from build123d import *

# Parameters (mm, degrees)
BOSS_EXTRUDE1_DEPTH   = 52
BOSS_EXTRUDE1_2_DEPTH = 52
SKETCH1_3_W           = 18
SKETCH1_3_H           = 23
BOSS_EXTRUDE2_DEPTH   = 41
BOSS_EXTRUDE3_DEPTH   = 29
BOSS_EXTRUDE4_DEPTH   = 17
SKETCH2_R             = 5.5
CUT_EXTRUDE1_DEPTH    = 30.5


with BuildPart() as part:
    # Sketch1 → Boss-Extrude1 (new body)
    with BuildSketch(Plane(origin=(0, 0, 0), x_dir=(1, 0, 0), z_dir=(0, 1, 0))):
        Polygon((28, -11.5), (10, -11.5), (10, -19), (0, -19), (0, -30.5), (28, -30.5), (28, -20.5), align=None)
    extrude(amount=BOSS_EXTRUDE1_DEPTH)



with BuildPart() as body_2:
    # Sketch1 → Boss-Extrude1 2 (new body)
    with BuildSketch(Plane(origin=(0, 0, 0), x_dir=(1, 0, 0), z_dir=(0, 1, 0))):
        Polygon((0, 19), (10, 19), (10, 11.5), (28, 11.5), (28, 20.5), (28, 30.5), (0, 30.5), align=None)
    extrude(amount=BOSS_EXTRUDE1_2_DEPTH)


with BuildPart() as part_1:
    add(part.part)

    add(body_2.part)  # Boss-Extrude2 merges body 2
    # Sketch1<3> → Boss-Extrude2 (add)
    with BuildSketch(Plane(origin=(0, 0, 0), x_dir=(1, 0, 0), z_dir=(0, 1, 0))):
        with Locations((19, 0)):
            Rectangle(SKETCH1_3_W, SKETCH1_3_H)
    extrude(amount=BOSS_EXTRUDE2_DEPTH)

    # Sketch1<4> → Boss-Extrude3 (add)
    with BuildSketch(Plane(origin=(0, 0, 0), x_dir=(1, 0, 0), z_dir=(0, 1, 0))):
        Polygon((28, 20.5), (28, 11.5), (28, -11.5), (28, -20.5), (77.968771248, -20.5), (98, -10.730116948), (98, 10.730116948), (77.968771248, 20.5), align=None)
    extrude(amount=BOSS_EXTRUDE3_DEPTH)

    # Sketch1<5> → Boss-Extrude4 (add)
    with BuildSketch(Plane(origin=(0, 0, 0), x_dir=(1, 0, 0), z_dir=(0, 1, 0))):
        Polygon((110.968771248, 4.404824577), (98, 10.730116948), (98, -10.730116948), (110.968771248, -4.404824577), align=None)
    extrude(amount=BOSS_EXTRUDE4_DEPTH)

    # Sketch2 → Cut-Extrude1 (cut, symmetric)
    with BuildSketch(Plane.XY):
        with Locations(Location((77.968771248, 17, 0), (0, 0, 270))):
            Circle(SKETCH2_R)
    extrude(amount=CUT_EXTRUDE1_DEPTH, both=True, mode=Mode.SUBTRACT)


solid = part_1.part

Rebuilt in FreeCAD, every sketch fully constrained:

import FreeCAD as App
import Part
import Sketcher
Q = App.Units.Quantity


def add_polygon(sketch, points):
    """Adds a closed chain of lines whose ends are joined by coincident constraints."""
    first, n = sketch.GeometryCount, len(points)
    for a, b in zip(points, points[1:] + points[:1]):
        sketch.addGeometry(Part.LineSegment(App.Vector(*a, 0), App.Vector(*b, 0)), False)
    for i in range(n):
        sketch.addConstraint(Sketcher.Constraint("Coincident", first + i, 2, first + (i + 1) % n, 1))

doc = App.newDocument("Part")
body = doc.addObject("PartDesign::Body", "Body")

# Sketch on XZ plane
sketch1 = body.newObject("Sketcher::SketchObject", "Sketch")
sketch1.AttachmentSupport = (doc.getObject("XZ_Plane"), [""])
sketch1.MapMode = "FlatFace"
add_polygon(sketch1, [(28, 12), (10, 12), (10, 19), (0, 19), (0, 30), (28, 30)])  # lines 0-5
sketch1.addConstraint([
    Sketcher.Constraint("Horizontal", 0),
    Sketcher.Constraint("Vertical", 1),
    Sketcher.Constraint("Horizontal", 2),
    Sketcher.Constraint("Vertical", 3),
    Sketcher.Constraint("Horizontal", 4),
    Sketcher.Constraint("Vertical", 5),
    Sketcher.Constraint("PointOnObject", 2, 2, -2),
    Sketcher.Constraint("DistanceX", 0, 2, 0, 1, 18.0),
    Sketcher.Constraint("DistanceX", 2, 2, 2, 1, 10.0),
    Sketcher.Constraint("DistanceY", 5, 2, 5, 1, 19.0),
    Sketcher.Constraint("DistanceY", 1, 1, 1, 2, 7.5),
    Sketcher.Constraint("DistanceY", -1, 1, 1, 2, 19.0),
])
pad1 = body.newObject("PartDesign::Pad", "Pad")
pad1.Profile = sketch1
pad1.Length = 52
pad1.Reversed = True
body2 = doc.addObject("PartDesign::Body", "Body001")

# Sketch on XZ plane
sketch2 = body2.newObject("Sketcher::SketchObject", "Sketch001")
sketch2.AttachmentSupport = (doc.getObject("XZ_Plane001"), [""])
sketch2.MapMode = "FlatFace"
add_polygon(sketch2, [(0, -19), (10, -19), (10, -12), (28, -12), (28, -30), (0, -30)])  # lines 0-5
sketch2.addConstraint([
    Sketcher.Constraint("Horizontal", 0),
    Sketcher.Constraint("Vertical", 1),
    Sketcher.Constraint("Horizontal", 2),
    Sketcher.Constraint("Vertical", 3),
    Sketcher.Constraint("Horizontal", 4),
    Sketcher.Constraint("Vertical", 5),
    Sketcher.Constraint("PointOnObject", 4, 2, -2),
    Sketcher.Constraint("DistanceX", 0, 1, 0, 2, 10.0),
    Sketcher.Constraint("DistanceX", 2, 1, 2, 2, 18.0),
    Sketcher.Constraint("DistanceY", 3, 2, 3, 1, 19.0),
    Sketcher.Constraint("DistanceY", 1, 1, 1, 2, 7.5),
    Sketcher.Constraint("DistanceY", 0, 2, -1, 1, 19.0),
])
pad2 = body2.newObject("PartDesign::Pad", "Pad001")
pad2.Profile = sketch2
pad2.Length = 52
pad2.Reversed = True
body.AllowCompound = True
doc.recompute()

boolean = body.newObject("PartDesign::Boolean", "Boolean")
boolean.Type = "Fuse"
boolean.addObjects([body2])

# Sketch on XZ plane
sketch3 = body.newObject("Sketcher::SketchObject", "Sketch002")
sketch3.AttachmentSupport = (doc.getObject("XZ_Plane"), [""])
sketch3.MapMode = "FlatFace"
add_polygon(sketch3, [(10, -12), (10, 12), (28, 12), (28, -12)])  # lines 0-3
sketch3.addConstraint([
    Sketcher.Constraint("Vertical", 0),
    Sketcher.Constraint("Horizontal", 1),
    Sketcher.Constraint("Vertical", 2),
    Sketcher.Constraint("Horizontal", 3),
    Sketcher.Constraint("DistanceX", 1, 1, 1, 2, 18.0),
    Sketcher.Constraint("DistanceY", 0, 1, 0, 2, 23.0),
    Sketcher.Constraint("DistanceX", -1, 1, 0, 2, 10.0),
    Sketcher.Constraint("DistanceY", -1, 1, 0, 2, 11.5),
])
pad3 = body.newObject("PartDesign::Pad", "Pad002")
pad3.Profile = sketch3
pad3.Length = 41
pad3.Reversed = True

# Sketch on XZ plane
sketch4 = body.newObject("Sketcher::SketchObject", "Sketch003")
sketch4.AttachmentSupport = (doc.getObject("XZ_Plane"), [""])
sketch4.MapMode = "FlatFace"
add_polygon(sketch4, [(28, -20), (28, 20), (78, 20), (98, 11), (98, -11), (78, -20)])  # lines 0-5
sketch4.addConstraint([
    Sketcher.Constraint("Vertical", 0),
    Sketcher.Constraint("Horizontal", 1),
    Sketcher.Constraint("Vertical", 3),
    Sketcher.Constraint("Horizontal", 5),
    Sketcher.Constraint("Symmetric", 1, 2, 4, 2, -1),
    Sketcher.Constraint("Equal", 2, 4),
    Sketcher.Constraint("DistanceY", 0, 1, 0, 2, 41.0),
    Sketcher.Constraint("Angle", 2, Q("-26 deg")),
    Sketcher.Constraint("DistanceX", -1, 1, 0, 2, 28.0),
    Sketcher.Constraint("DistanceX", -1, 1, 2, 2, 98.0),
    Sketcher.Constraint("DistanceX", 1, 1, 1, 2, 49.968771),
])
pad4 = body.newObject("PartDesign::Pad", "Pad003")
pad4.Profile = sketch4
pad4.Length = 29
pad4.Reversed = True

# Sketch on XZ plane
sketch5 = body.newObject("Sketcher::SketchObject", "Sketch004")
sketch5.AttachmentSupport = (doc.getObject("XZ_Plane"), [""])
sketch5.MapMode = "FlatFace"
add_polygon(sketch5, [(111, -4), (98, -11), (98, 11), (111, 4)])  # lines 0-3
sketch5.addConstraint([
    Sketcher.Constraint("Vertical", 1),
    Sketcher.Constraint("Vertical", 3),
    Sketcher.Constraint("Equal", 0, 2),
    Sketcher.Constraint("Angle", 0, Q("-154 deg")),
    Sketcher.Constraint("DistanceX", -1, 1, 0, 2, 98.0),
    Sketcher.Constraint("DistanceY", 3, 2, 3, 1, 8.809649),
    Sketcher.Constraint("Distance", 0, 14.42908),
    Sketcher.Constraint("DistanceY", 0, 2, -1, 1, 10.730117),
])
pad5 = body.newObject("PartDesign::Pad", "Pad004")
pad5.Profile = sketch5
pad5.Length = 17
pad5.Reversed = True

# Sketch on XY plane
sketch6 = body.newObject("Sketcher::SketchObject", "Sketch005")
sketch6.AttachmentSupport = (doc.getObject("XY_Plane"), [""])
sketch6.MapMode = "FlatFace"
sketch6.addGeometry(Part.Circle(App.Vector(78, 17, 0), App.Vector(0, 0, 1), 6), False)
sketch6.addConstraint([
    Sketcher.Constraint("Diameter", 0, 11.0),
    Sketcher.Constraint("DistanceY", -1, 1, 0, 3, 17.0),
    Sketcher.Constraint("DistanceX", -1, 1, 0, 3, 77.968771),
])
pocket1 = body.newObject("PartDesign::Pocket", "Pocket")
pocket1.Profile = sketch6
pocket1.Length = 61
pocket1.Midplane = True

doc.recompute()
